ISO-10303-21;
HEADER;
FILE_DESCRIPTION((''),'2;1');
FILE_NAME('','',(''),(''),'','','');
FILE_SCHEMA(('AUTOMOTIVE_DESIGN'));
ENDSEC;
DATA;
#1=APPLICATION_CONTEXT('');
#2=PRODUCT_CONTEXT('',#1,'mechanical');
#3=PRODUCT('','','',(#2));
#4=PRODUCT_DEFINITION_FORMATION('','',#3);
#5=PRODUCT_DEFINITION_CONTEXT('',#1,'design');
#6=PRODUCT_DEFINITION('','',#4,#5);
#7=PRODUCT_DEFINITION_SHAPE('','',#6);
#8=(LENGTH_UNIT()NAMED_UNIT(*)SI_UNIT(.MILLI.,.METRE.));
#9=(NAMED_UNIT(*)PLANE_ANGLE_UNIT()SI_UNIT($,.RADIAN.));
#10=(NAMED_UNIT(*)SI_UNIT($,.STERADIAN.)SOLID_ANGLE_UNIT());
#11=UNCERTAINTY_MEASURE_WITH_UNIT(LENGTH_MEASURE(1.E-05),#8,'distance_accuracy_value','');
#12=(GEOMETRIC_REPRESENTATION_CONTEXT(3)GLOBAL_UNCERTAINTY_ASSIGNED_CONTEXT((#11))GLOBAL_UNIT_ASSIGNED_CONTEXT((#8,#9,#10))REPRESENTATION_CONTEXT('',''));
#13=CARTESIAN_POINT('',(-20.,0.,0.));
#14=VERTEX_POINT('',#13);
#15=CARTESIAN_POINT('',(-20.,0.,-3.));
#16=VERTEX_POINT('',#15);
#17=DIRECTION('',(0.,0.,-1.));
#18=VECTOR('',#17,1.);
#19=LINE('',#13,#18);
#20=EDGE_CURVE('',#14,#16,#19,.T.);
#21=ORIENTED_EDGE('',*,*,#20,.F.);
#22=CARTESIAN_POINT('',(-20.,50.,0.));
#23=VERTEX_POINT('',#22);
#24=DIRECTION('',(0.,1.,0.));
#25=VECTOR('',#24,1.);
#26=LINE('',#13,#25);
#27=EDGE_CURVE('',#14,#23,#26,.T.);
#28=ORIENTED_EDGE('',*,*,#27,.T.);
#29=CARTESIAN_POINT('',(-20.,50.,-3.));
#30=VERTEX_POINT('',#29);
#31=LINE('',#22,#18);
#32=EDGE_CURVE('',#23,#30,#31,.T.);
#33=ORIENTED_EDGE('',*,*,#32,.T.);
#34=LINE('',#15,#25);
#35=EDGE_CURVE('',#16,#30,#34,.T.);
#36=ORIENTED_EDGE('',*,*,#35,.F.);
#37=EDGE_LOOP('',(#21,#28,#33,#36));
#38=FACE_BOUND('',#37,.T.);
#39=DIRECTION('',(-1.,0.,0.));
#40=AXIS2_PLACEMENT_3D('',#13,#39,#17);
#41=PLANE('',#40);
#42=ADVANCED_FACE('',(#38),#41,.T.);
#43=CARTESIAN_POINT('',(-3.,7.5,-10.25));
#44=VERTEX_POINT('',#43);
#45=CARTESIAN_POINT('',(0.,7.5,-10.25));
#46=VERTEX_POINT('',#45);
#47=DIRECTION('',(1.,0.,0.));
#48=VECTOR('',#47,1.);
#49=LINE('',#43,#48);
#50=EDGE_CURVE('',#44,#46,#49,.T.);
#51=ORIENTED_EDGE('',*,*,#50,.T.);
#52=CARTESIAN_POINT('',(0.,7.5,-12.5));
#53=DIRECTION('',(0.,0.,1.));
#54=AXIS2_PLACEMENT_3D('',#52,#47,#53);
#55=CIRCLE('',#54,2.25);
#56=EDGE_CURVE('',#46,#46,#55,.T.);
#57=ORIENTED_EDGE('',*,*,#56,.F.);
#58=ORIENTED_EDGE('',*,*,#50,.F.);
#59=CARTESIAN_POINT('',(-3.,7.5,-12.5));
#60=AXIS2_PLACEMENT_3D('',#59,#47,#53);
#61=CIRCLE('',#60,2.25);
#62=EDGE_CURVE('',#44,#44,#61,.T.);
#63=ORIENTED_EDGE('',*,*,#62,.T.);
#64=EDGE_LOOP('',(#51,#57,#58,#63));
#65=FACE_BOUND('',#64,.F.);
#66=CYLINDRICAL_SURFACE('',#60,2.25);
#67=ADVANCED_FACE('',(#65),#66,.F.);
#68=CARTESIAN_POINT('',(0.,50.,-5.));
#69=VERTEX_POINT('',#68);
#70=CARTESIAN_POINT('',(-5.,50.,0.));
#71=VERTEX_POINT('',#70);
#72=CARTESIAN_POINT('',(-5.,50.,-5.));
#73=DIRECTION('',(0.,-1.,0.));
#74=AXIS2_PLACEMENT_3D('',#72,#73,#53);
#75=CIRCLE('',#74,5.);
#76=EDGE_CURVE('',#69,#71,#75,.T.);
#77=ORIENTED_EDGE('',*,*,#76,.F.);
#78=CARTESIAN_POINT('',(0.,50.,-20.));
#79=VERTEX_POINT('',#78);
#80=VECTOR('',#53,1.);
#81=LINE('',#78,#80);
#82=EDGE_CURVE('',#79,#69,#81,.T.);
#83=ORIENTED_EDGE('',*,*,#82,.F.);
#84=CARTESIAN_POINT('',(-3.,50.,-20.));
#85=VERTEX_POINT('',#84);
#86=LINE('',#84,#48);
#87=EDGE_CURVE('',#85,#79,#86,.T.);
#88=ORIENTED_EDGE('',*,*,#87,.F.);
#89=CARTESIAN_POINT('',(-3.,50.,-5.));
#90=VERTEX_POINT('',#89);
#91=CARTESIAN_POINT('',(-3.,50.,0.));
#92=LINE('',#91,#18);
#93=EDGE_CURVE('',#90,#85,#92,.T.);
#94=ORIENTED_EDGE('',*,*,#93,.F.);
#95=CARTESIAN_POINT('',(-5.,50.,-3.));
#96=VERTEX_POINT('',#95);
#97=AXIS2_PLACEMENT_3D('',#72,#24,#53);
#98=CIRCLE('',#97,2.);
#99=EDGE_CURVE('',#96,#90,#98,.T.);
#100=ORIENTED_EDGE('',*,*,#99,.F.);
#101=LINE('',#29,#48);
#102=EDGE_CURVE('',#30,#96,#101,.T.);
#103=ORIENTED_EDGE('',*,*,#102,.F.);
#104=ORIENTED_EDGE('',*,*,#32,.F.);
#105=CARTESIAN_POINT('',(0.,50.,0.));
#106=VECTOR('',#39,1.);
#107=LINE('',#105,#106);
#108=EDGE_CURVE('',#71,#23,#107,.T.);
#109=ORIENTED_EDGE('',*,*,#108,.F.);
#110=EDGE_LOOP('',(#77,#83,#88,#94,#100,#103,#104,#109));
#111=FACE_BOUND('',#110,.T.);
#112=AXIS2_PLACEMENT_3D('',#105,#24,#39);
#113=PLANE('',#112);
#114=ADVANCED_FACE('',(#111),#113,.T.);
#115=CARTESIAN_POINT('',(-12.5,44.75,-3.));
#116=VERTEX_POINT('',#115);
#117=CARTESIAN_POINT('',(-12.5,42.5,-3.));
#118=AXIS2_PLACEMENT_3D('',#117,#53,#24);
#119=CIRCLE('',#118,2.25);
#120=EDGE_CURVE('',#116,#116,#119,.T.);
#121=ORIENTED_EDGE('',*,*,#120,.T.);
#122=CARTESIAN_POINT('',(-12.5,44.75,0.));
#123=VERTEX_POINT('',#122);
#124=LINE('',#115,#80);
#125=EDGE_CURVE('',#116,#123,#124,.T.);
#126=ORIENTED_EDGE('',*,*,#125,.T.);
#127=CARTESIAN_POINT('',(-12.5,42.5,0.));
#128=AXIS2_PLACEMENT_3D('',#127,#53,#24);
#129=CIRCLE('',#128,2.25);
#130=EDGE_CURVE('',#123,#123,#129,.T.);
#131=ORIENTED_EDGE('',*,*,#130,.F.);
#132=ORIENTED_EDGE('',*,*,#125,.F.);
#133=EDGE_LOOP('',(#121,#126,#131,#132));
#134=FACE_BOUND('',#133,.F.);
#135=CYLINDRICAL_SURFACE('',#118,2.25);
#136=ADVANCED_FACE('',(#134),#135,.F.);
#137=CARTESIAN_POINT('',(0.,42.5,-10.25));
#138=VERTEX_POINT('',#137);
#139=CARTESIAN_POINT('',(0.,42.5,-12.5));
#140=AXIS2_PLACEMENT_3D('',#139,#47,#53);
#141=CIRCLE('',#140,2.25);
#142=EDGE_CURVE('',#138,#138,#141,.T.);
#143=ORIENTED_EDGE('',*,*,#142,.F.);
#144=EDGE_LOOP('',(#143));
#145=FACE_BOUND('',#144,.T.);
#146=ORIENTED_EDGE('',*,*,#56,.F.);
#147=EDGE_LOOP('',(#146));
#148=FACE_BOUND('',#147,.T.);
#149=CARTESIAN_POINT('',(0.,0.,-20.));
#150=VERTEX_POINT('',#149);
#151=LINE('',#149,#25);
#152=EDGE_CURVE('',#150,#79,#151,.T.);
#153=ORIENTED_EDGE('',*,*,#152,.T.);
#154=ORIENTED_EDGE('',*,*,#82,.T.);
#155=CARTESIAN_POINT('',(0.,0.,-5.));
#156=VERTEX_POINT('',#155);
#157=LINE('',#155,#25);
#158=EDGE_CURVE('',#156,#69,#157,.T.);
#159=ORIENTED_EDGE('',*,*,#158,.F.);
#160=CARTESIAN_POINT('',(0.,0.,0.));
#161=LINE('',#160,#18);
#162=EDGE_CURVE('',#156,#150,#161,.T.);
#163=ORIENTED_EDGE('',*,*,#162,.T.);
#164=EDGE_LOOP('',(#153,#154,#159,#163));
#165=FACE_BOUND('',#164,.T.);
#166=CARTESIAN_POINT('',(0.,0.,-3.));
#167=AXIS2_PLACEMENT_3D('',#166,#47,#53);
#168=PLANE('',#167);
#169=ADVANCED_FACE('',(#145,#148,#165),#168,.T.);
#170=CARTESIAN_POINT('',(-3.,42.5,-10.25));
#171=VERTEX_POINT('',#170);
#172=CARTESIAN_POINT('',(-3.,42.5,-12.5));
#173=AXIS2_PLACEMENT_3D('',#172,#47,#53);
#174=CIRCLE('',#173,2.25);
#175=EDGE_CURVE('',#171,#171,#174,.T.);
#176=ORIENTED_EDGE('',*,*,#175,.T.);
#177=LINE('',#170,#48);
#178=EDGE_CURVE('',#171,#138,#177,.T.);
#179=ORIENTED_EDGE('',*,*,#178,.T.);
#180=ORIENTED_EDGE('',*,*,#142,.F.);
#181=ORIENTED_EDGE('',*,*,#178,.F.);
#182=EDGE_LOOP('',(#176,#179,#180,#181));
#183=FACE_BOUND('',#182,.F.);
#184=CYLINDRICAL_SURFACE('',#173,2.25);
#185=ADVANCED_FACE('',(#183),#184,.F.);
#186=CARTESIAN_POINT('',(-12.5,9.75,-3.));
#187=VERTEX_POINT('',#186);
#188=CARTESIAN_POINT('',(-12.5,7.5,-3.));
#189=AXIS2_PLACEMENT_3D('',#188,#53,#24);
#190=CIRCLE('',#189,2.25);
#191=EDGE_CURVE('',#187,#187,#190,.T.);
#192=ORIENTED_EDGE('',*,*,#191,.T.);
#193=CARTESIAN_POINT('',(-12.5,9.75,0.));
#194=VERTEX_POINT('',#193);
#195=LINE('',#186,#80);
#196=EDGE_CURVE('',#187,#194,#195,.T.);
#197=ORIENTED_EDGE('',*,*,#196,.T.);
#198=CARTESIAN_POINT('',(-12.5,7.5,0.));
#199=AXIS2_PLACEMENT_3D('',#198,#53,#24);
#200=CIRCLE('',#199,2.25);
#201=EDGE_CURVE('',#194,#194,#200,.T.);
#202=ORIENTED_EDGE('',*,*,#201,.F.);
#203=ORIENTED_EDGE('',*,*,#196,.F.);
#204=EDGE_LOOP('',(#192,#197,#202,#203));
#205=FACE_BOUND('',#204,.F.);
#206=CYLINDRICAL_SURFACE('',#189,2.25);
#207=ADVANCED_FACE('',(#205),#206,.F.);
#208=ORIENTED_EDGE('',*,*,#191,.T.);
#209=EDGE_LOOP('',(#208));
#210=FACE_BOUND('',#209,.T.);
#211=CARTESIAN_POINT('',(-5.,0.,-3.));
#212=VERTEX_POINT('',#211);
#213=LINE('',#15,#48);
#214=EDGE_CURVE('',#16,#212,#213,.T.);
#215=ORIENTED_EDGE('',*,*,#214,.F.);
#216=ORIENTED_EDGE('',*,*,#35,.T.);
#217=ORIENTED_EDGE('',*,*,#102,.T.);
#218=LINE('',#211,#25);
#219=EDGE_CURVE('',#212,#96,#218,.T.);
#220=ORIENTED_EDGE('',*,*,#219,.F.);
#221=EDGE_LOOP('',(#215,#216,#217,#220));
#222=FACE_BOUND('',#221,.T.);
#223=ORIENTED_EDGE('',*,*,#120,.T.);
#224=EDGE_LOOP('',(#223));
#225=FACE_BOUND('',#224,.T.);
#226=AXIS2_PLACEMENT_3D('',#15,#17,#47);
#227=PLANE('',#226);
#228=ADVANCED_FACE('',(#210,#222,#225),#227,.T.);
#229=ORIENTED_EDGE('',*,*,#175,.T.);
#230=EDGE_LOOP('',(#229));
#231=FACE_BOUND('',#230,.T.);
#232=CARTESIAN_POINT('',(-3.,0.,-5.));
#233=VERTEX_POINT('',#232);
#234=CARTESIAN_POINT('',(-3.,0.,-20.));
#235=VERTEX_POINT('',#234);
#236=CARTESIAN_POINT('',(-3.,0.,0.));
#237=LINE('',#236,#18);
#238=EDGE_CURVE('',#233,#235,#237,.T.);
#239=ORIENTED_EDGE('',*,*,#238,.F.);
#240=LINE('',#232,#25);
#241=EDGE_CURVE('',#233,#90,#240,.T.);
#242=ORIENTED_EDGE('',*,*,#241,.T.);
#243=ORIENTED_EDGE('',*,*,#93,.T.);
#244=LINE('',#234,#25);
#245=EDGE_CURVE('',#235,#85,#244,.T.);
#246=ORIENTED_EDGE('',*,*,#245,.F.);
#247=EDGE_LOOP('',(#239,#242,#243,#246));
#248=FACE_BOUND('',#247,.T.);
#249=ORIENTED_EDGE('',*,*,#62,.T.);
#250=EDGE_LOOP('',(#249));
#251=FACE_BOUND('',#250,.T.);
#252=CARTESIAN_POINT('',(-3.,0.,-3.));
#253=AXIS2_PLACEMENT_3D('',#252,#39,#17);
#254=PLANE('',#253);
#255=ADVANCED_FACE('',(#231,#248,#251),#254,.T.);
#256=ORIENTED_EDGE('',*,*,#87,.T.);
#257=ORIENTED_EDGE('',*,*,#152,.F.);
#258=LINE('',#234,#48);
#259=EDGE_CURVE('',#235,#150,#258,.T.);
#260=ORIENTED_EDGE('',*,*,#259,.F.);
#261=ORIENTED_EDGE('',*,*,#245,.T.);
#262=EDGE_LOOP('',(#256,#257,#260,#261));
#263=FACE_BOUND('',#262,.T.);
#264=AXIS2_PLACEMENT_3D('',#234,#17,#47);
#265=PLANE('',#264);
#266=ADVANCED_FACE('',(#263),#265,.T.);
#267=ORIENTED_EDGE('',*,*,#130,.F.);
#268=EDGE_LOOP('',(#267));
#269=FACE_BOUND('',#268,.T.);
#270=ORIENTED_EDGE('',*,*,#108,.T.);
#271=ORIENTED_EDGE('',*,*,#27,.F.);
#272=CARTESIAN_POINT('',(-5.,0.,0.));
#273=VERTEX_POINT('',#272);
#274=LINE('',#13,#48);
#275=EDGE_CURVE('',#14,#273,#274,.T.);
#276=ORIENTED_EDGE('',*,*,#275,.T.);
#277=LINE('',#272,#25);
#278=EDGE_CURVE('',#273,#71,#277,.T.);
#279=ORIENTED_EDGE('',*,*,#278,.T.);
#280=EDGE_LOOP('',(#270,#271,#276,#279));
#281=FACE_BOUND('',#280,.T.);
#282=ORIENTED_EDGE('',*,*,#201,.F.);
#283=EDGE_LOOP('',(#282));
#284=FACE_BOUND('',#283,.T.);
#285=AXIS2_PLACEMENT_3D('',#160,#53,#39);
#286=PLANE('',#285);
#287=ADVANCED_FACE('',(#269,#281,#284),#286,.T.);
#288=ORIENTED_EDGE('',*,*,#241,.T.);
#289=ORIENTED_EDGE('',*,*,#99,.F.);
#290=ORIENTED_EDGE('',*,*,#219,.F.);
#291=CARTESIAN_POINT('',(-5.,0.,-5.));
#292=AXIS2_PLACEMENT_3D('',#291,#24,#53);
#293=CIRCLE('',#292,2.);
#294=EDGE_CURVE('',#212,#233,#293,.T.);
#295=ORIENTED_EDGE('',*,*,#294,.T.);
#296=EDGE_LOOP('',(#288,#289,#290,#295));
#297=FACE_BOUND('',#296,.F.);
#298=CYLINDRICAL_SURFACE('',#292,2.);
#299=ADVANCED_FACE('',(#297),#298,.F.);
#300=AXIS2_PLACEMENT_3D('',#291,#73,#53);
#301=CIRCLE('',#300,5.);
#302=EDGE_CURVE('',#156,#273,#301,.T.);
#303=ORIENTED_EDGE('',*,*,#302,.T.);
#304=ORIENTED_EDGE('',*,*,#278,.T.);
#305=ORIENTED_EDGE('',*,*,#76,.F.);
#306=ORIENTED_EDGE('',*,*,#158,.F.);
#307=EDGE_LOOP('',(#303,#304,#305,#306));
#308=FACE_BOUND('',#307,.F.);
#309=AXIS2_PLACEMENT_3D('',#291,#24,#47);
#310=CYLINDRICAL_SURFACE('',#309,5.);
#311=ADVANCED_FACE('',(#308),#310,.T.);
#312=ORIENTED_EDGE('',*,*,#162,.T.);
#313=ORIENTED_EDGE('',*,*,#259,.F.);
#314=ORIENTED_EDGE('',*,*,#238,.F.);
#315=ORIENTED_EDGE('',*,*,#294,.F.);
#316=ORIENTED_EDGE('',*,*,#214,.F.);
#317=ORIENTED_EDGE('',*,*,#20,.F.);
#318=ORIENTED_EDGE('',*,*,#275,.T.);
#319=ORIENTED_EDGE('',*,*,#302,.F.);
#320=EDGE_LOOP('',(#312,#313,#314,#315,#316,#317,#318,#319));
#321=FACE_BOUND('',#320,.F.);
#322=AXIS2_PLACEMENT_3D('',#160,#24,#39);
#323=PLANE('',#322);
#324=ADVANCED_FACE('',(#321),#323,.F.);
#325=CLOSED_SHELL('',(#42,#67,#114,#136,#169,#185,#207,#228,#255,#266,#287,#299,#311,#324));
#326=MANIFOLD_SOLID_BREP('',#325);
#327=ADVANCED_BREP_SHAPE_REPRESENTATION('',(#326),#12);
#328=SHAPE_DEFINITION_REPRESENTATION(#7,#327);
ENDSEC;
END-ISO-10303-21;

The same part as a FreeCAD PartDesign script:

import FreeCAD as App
import Part
import Sketcher
from FreeCAD import Vector
Q = App.Units.Quantity


def edges_at(feature, points):
    """Names of the edges that pass closest to the given points."""
    edges = feature.Shape.Edges
    near = lambda p: min(range(len(edges)), key=lambda i: edges[i].distToShape(Part.Vertex(*p))[0])
    return sorted({f"Edge{near(p) + 1}" for p in points})


def add_polygon(sketch, points):
    """Adds a closed chain of lines whose ends are joined by coincident constraints."""
    first, n = sketch.GeometryCount, len(points)
    for a, b in zip(points, points[1:] + points[:1]):
        sketch.addGeometry(Part.LineSegment(App.Vector(*a, 0), App.Vector(*b, 0)), False)
    for i in range(n):
        sketch.addConstraint(Sketcher.Constraint("Coincident", first + i, 2, first + (i + 1) % n, 1))

doc = App.newDocument("Part")
body = doc.addObject("PartDesign::Body", "Body")

sketch1 = body.newObject("Sketcher::SketchObject", "Sketch")
sketch1.AttachmentSupport = (doc.getObject("XZ_Plane"), [""])
sketch1.MapMode = "FlatFace"
add_polygon(sketch1, [(0, 0), (0, -20), (-3, -20), (-3, -3), (-20, -3), (-20, 0)])
sketch1.addConstraint(Sketcher.Constraint("Vertical", 0))
sketch1.addConstraint(Sketcher.Constraint("Horizontal", 1))
sketch1.addConstraint(Sketcher.Constraint("Vertical", 2))
sketch1.addConstraint(Sketcher.Constraint("Horizontal", 3))
sketch1.addConstraint(Sketcher.Constraint("Vertical", 4))
sketch1.addConstraint(Sketcher.Constraint("Horizontal", 5))
sketch1.addConstraint(Sketcher.Constraint("Coincident", 5, 2, -1, 1))
sketch1.addConstraint(Sketcher.Constraint("Equal", 5, 0))
sketch1.addConstraint(Sketcher.Constraint("Equal", 3, 2))
sketch1.addConstraint(Sketcher.Constraint("DistanceX", 1, 2, 1, 1, Q("3 mm")))
sketch1.addConstraint(Sketcher.Constraint("DistanceX", 5, 1, 5, 2, Q("20 mm")))
pad1 = body.newObject("PartDesign::Pad", "Pad")
pad1.Profile = sketch1
pad1.Length = 50
pad1.Reversed = True
doc.recompute()

fillet = body.newObject("PartDesign::Fillet", "Fillet")
fillet.Base = (pad1, edges_at(pad1, [(-3, 25, -3)]))
fillet.Radius = 2
doc.recompute()

fillet2 = body.newObject("PartDesign::Fillet", "Fillet001")
fillet2.Base = (fillet, edges_at(fillet, [(0, 25, 0)]))
fillet2.Radius = 5

sketch2 = body.newObject("Sketcher::SketchObject", "Sketch001")
sketch2.AttachmentSupport = (doc.getObject("YZ_Plane"), [""])
sketch2.MapMode = "FlatFace"
sketch2.AttachmentOffset = App.Placement(Vector(0, 0, -3), App.Rotation())
sketch2.addGeometry(Part.Circle(Vector(42.5, -12.5, 0), Vector(0, 0, 1), 2.2), False)
sketch2.addGeometry(Part.Circle(Vector(7.5, -12.5, 0), Vector(0, 0, 1), 2.2), False)
sketch2.addConstraint(Sketcher.Constraint("Equal", 0, 1))
sketch2.addConstraint(Sketcher.Constraint("Horizontal", 0, 3, 1, 3))
sketch2.addConstraint(Sketcher.Constraint("Diameter", 0, Q("4.5 mm")))
sketch2.addConstraint(Sketcher.Constraint("DistanceX", 1, 3, 0, 3, Q("35 mm")))
sketch2.addConstraint(Sketcher.Constraint("DistanceX", -1, 1, 0, 3, Q("42.5 mm")))
sketch2.addConstraint(Sketcher.Constraint("DistanceY", 0, 3, -1, 1, Q("12.5 mm")))
doc.recompute()
hole = body.newObject("PartDesign::Hole", "Hole")
hole.Profile = sketch2
hole.ThreadType = "None"
hole.Diameter = 4.5
hole.DepthType = "ThroughAll"
hole.Reversed = True

sketch3 = body.newObject("Sketcher::SketchObject", "Sketch002")
sketch3.AttachmentSupport = (doc.getObject("XY_Plane"), [""])
sketch3.MapMode = "FlatFace"
sketch3.AttachmentOffset = App.Placement(Vector(0, 0, -3), App.Rotation())
sketch3.addGeometry(Part.Circle(Vector(-12.5, 42.5, 0), Vector(0, 0, 1), 2.2), False)
sketch3.addGeometry(Part.Circle(Vector(-12.5, 7.5, 0), Vector(0, 0, 1), 2.2), False)
sketch3.addConstraint(Sketcher.Constraint("Equal", 0, 1))
sketch3.addConstraint(Sketcher.Constraint("Vertical", 0, 3, 1, 3))
sketch3.addConstraint(Sketcher.Constraint("Diameter", 0, Q("4.5 mm")))
sketch3.addConstraint(Sketcher.Constraint("DistanceY", 1, 3, 0, 3, Q("35 mm")))
sketch3.addConstraint(Sketcher.Constraint("DistanceX", 0, 3, -1, 1, Q("12.5 mm")))
sketch3.addConstraint(Sketcher.Constraint("DistanceY", -1, 1, 0, 3, Q("42.5 mm")))
doc.recompute()
hole2 = body.newObject("PartDesign::Hole", "Hole001")
hole2.Profile = sketch3
hole2.ThreadType = "None"
hole2.Diameter = 4.5
hole2.DepthType = "ThroughAll"
hole2.Reversed = True

doc.recompute()
